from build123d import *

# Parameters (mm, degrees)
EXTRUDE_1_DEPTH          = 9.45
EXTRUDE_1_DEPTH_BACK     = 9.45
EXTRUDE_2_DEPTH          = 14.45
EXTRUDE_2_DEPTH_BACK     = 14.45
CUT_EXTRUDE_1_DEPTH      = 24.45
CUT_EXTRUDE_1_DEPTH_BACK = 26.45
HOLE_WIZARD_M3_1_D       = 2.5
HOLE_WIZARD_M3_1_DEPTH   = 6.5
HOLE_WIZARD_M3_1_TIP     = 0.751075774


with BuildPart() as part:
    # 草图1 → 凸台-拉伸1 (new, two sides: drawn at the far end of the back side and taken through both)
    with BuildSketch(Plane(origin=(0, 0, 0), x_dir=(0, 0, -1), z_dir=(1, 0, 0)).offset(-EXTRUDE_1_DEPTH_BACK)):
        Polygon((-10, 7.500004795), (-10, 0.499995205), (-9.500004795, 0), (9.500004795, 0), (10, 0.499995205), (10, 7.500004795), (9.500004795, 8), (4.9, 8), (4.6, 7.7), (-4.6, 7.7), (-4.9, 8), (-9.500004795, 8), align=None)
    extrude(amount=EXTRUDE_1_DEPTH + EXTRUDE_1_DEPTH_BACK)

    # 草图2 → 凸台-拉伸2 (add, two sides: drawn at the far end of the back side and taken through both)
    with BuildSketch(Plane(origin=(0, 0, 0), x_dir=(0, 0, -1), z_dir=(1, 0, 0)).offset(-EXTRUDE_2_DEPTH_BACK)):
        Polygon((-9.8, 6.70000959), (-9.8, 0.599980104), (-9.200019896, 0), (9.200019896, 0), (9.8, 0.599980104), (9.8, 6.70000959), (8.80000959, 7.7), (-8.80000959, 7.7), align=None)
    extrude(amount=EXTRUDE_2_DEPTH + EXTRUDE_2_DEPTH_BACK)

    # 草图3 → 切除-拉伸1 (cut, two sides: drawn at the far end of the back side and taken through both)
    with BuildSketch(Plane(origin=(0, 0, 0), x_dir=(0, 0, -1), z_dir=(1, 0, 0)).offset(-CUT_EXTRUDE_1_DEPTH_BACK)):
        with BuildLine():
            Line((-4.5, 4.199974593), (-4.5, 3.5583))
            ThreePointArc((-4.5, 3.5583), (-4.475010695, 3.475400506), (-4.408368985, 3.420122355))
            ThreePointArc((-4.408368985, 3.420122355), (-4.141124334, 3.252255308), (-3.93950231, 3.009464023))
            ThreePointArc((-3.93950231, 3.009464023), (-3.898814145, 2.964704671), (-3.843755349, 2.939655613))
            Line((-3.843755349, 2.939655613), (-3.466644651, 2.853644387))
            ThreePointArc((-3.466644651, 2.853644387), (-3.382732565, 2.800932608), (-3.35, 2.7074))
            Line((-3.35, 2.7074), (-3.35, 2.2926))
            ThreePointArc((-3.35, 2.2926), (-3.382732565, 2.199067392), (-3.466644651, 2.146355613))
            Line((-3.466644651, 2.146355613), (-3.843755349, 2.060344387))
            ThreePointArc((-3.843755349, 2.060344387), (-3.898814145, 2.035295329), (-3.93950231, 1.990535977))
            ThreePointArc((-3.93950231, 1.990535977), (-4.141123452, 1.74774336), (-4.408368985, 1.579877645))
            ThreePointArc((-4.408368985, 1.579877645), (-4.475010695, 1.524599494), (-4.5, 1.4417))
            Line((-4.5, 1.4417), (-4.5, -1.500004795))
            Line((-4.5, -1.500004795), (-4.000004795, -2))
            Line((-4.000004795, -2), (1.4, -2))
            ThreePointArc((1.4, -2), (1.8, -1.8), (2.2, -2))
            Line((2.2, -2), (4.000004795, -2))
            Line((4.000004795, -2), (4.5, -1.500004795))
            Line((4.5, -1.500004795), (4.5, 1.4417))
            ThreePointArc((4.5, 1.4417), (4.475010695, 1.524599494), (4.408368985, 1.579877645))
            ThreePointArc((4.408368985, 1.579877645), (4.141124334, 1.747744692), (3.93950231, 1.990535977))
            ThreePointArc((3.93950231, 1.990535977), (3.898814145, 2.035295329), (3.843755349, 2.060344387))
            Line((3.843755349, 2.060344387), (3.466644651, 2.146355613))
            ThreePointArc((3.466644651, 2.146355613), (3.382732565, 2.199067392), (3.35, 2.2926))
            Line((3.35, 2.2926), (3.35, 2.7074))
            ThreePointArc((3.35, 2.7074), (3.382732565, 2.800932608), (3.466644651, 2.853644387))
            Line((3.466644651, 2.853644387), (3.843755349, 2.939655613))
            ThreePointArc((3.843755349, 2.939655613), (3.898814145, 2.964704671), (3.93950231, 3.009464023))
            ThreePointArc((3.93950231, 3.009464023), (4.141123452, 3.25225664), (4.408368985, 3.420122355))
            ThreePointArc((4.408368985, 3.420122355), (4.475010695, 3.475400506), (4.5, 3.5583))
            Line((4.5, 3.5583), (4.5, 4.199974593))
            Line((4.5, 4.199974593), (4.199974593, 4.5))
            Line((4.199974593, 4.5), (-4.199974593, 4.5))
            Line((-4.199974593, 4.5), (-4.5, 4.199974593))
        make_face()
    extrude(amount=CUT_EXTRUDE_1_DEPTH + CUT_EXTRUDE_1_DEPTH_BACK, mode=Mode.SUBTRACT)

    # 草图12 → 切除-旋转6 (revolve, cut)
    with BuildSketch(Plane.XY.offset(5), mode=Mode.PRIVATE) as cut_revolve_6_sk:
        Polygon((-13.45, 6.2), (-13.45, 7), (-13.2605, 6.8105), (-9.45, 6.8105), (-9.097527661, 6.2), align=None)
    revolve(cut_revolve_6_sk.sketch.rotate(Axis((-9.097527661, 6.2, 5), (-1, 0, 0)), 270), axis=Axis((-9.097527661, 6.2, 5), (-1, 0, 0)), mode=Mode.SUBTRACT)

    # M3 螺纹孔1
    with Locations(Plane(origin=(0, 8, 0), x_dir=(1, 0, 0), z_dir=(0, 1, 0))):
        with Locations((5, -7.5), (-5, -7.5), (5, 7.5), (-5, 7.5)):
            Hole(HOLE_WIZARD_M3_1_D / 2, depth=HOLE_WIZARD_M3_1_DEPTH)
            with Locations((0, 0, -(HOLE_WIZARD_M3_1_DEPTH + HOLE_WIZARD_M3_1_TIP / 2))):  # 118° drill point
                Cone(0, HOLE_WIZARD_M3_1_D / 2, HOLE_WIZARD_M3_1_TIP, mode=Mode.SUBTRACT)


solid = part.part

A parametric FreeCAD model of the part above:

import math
import FreeCAD as App
import Part
import Sketcher
from FreeCAD import Vector
Q = App.Units.Quantity


def add_polygon(sketch, points):
    """Adds a closed chain of lines whose ends are joined by coincident constraints."""
    first, n = sketch.GeometryCount, len(points)
    for a, b in zip(points, points[1:] + points[:1]):
        sketch.addGeometry(Part.LineSegment(App.Vector(*a, 0), App.Vector(*b, 0)), False)
    for i in range(n):
        sketch.addConstraint(Sketcher.Constraint("Coincident", first + i, 2, first + (i + 1) % n, 1))

doc = App.newDocument("Part")
body = doc.addObject("PartDesign::Body", "Body")

sketch1 = body.newObject("Sketcher::SketchObject", "Sketch")
sketch1.AttachmentSupport = (doc.getObject("YZ_Plane"), [""])
sketch1.MapMode = "FlatFace"
add_polygon(sketch1, [(7.5, 10), (0.5, 10), (0, 9.5), (0, -9.5), (0.5, -10), (7.5, -10), (8, -9.5), (8, -4.9), (7.7, -4.6), (7.7, 4.6), (8, 4.9), (8, 9.5)])
sketch1.addConstraint([
    Sketcher.Constraint("Horizontal", 0),
    Sketcher.Constraint("Vertical", 2),
    Sketcher.Constraint("Horizontal", 4),
    Sketcher.Constraint("Vertical", 6),
    Sketcher.Constraint("Vertical", 8),
    Sketcher.Constraint("Vertical", 10),
    Sketcher.Constraint("Symmetric", 1, 2, 2, 2, -1, 1),
    Sketcher.Constraint("Symmetric", 0, 2, 3, 2, -1),
    Sketcher.Constraint("Symmetric", 6, 2, 9, 2, -1),
    Sketcher.Constraint("Perpendicular", 1, 3),
    Sketcher.Constraint("Perpendicular", 3, 5),
    Sketcher.Constraint("Perpendicular", 5, 7),
    Sketcher.Constraint("Perpendicular", 7, 9),
    Sketcher.Constraint("Perpendicular", 9, 11),
    Sketcher.Constraint("Horizontal", 2, 2, 5, 2),
    Sketcher.Constraint("Horizontal", 1, 2, 10, 2),
    Sketcher.Constraint("DistanceY", 8, 1, 8, 2, 9.2),
    Sketcher.Constraint("DistanceY", -1, 1, 0, 2, 10.0),
    Sketcher.Constraint("DistanceX", -1, 1, 5, 2, 8.0),
    Sketcher.Constraint("DistanceY", 6, 2, -1, 1, 4.9),
    Sketcher.Constraint("Distance", 1, 0.7071),
])
pad1 = body.newObject("PartDesign::Pad", "Pad")
pad1.Profile = sketch1
pad1.Type = "TwoLengths"
pad1.Length = 9.45
pad1.Length2 = 9.45

sketch2 = body.newObject("Sketcher::SketchObject", "Sketch001")
sketch2.AttachmentSupport = (doc.getObject("YZ_Plane"), [""])
sketch2.MapMode = "FlatFace"
add_polygon(sketch2, [(6.7, 9.8), (0.6, 9.8), (0, 9.2), (0, -9.2), (0.6, -9.8), (6.7, -9.8), (7.7, -8.8), (7.7, 8.8)])
sketch2.addConstraint([
    Sketcher.Constraint("Horizontal", 0),
    Sketcher.Constraint("Vertical", 2),
    Sketcher.Constraint("Horizontal", 4),
    Sketcher.Constraint("Vertical", 6),
    Sketcher.Constraint("Symmetric", 1, 2, 2, 2, -1, 1),
    Sketcher.Constraint("Symmetric", 0, 2, 3, 2, -1),
    Sketcher.Constraint("Perpendicular", 1, 3),
    Sketcher.Constraint("Perpendicular", 3, 5),
    Sketcher.Constraint("Perpendicular", 5, 7),
    Sketcher.Constraint("Vertical", 4, 2, 7, 2),
    Sketcher.Constraint("DistanceY", -1, 1, 0, 2, 9.8),
    Sketcher.Constraint("DistanceX", -1, 1, 5, 2, 7.7),
    Sketcher.Constraint("Distance", 1, 0.8485),
    Sketcher.Constraint("Distance", 5, 1.4142),
])
pad2 = body.newObject("PartDesign::Pad", "Pad001")
pad2.Profile = sketch2
pad2.Type = "TwoLengths"
pad2.Length = 14.45
pad2.Length2 = 14.45

sketch3 = body.newObject("Sketcher::SketchObject", "Sketch002")
sketch3.AttachmentSupport = (doc.getObject("YZ_Plane"), [""])
sketch3.MapMode = "FlatFace"
sketch3.addGeometry([
    Part.LineSegment(Vector(4.2, 4.5, 0), Vector(3.56, 4.5, 0)),
    Part.ArcOfCircle(Part.Circle(Vector(3.56, 4.35, 0), Vector(0, 0, 1), 0.15), math.radians(90), math.radians(157)),
    Part.ArcOfCircle(Part.Circle(Vector(2.5, 4.8, 0), Vector(0, 0, 1), 1), math.radians(-59), math.radians(-23)),
    Part.ArcOfCircle(Part.Circle(Vector(3.09, 3.81, 0), Vector(0, 0, 1), 0.15), math.radians(121), math.radians(167)),
    Part.LineSegment(Vector(2.94, 3.84, 0), Vector(2.85, 3.47, 0)),
    Part.ArcOfCircle(Part.Circle(Vector(2.71, 3.5, 0), Vector(0, 0, 1), 0.15), math.radians(-90), math.radians(-13)),
    Part.LineSegment(Vector(2.71, 3.35, 0), Vector(2.29, 3.35, 0)),
    Part.ArcOfCircle(Part.Circle(Vector(2.29, 3.5, 0), Vector(0, 0, 1), 0.15), math.radians(-167), math.radians(-90)),
    Part.LineSegment(Vector(2.15, 3.47, 0), Vector(2.06, 3.84, 0)),
    Part.ArcOfCircle(Part.Circle(Vector(1.91, 3.81, 0), Vector(0, 0, 1), 0.15), math.radians(13), math.radians(59)),
    Part.ArcOfCircle(Part.Circle(Vector(2.5, 4.8, 0), Vector(0, 0, 1), 1), math.radians(-157), math.radians(-121)),
    Part.ArcOfCircle(Part.Circle(Vector(1.44, 4.35, 0), Vector(0, 0, 1), 0.15), math.radians(23), math.radians(90)),
    Part.LineSegment(Vector(1.44, 4.5, 0), Vector(-1.5, 4.5, 0)),
    Part.LineSegment(Vector(-1.5, 4.5, 0), Vector(-2, 4, 0)),
    Part.LineSegment(Vector(-2, 4, 0), Vector(-2, -1.4, 0)),
    Part.ArcOfCircle(Part.Circle(Vector(-2.3, -1.8, 0), Vector(0, 0, 1), 0.5), math.radians(-53), math.radians(53)),
    Part.LineSegment(Vector(-2, -2.2, 0), Vector(-2, -4, 0)),
    Part.LineSegment(Vector(-2, -4, 0), Vector(-1.5, -4.5, 0)),
    Part.LineSegment(Vector(-1.5, -4.5, 0), Vector(1.44, -4.5, 0)),
    Part.ArcOfCircle(Part.Circle(Vector(1.44, -4.35, 0), Vector(0, 0, 1), 0.15), math.radians(-90), math.radians(-23)),
    Part.ArcOfCircle(Part.Circle(Vector(2.5, -4.8, 0), Vector(0, 0, 1), 1), math.radians(121), math.radians(157)),
    Part.ArcOfCircle(Part.Circle(Vector(1.91, -3.81, 0), Vector(0, 0, 1), 0.15), math.radians(-59), math.radians(-13)),
    Part.LineSegment(Vector(2.06, -3.84, 0), Vector(2.15, -3.47, 0)),
    Part.ArcOfCircle(Part.Circle(Vector(2.29, -3.5, 0), Vector(0, 0, 1), 0.15), math.radians(90), math.radians(167)),
    Part.LineSegment(Vector(2.29, -3.35, 0), Vector(2.71, -3.35, 0)),
    Part.ArcOfCircle(Part.Circle(Vector(2.71, -3.5, 0), Vector(0, 0, 1), 0.15), math.radians(13), math.radians(90)),
    Part.LineSegment(Vector(2.85, -3.47, 0), Vector(2.94, -3.84, 0)),
    Part.ArcOfCircle(Part.Circle(Vector(3.09, -3.81, 0), Vector(0, 0, 1), 0.15), math.radians(-167), math.radians(-121)),
    Part.ArcOfCircle(Part.Circle(Vector(2.5, -4.8, 0), Vector(0, 0, 1), 1), math.radians(23), math.radians(59)),
    Part.ArcOfCircle(Part.Circle(Vector(3.56, -4.35, 0), Vector(0, 0, 1), 0.15), math.radians(-157), math.radians(-90)),
    Part.LineSegment(Vector(3.56, -4.5, 0), Vector(4.2, -4.5, 0)),
    Part.LineSegment(Vector(4.2, -4.5, 0), Vector(4.5, -4.2, 0)),
    Part.LineSegment(Vector(4.5, -4.2, 0), Vector(4.5, 4.2, 0)),
    Part.LineSegment(Vector(4.5, 4.2, 0), Vector(4.2, 4.5, 0)),
], False)
sketch3.addConstraint([
    Sketcher.Constraint("Tangent", 0, 2, 1, 1),
    Sketcher.Constraint("Coincident", 1, 2, 2, 2),
    Sketcher.Constraint("Coincident", 2, 1, 3, 1),
    Sketcher.Constraint("Coincident", 3, 2, 4, 1),
    Sketcher.Constraint("Tangent", 4, 2, 5, 2),
    Sketcher.Constraint("Tangent", 5, 1, 6, 1),
    Sketcher.Constraint("Tangent", 6, 2, 7, 2),
    Sketcher.Constraint("Tangent", 7, 1, 8, 1),
    Sketcher.Constraint("Coincident", 8, 2, 9, 1),
    Sketcher.Constraint("Coincident", 9, 2, 10, 2),
    Sketcher.Constraint("Coincident", 10, 1, 11, 1),
    Sketcher.Constraint("Tangent", 11, 2, 12, 1),
    Sketcher.Constraint("Coincident", 12, 2, 13, 1),
    Sketcher.Constraint("Coincident", 13, 2, 14, 1),
    Sketcher.Constraint("Coincident", 14, 2, 15, 2),
    Sketcher.Constraint("Coincident", 15, 1, 16, 1),
    Sketcher.Constraint("Coincident", 16, 2, 17, 1),
    Sketcher.Constraint("Coincident", 17, 2, 18, 1),
    Sketcher.Constraint("Tangent", 18, 2, 19, 1),
    Sketcher.Constraint("Coincident", 19, 2, 20, 2),
    Sketcher.Constraint("Coincident", 20, 1, 21, 1),
    Sketcher.Constraint("Coincident", 21, 2, 22, 1),
    Sketcher.Constraint("Tangent", 22, 2, 23, 2),
    Sketcher.Constraint("Tangent", 23, 1, 24, 1),
    Sketcher.Constraint("Tangent", 24, 2, 25, 2),
    Sketcher.Constraint("Tangent", 25, 1, 26, 1),
    Sketcher.Constraint("Coincident", 26, 2, 27, 1),
    Sketcher.Constraint("Coincident", 27, 2, 28, 2),
    Sketcher.Constraint("Coincident", 28, 1, 29, 1),
    Sketcher.Constraint("Tangent", 29, 2, 30, 1),
    Sketcher.Constraint("Coincident", 30, 2, 31, 1),
    Sketcher.Constraint("Coincident", 31, 2, 32, 1),
    Sketcher.Constraint("Coincident", 32, 2, 33, 1),
    Sketcher.Constraint("Coincident", 33, 2, 0, 1),
    Sketcher.Constraint("Horizontal", 0),
    Sketcher.Constraint("Horizontal", 6),
    Sketcher.Constraint("Horizontal", 12),
    Sketcher.Constraint("Vertical", 14),
    Sketcher.Constraint("Vertical", 16),
    Sketcher.Constraint("Horizontal", 18),
    Sketcher.Constraint("Horizontal", 24),
    Sketcher.Constraint("Horizontal", 30),
    Sketcher.Constraint("Vertical", 32),
    Sketcher.Constraint("Equal", 1, 3),
    Sketcher.Constraint("Equal", 3, 5),
    Sketcher.Constraint("Equal", 5, 7),
    Sketcher.Constraint("Equal", 7, 9),
    Sketcher.Constraint("Equal", 9, 11),
    Sketcher.Constraint("Equal", 11, 19),
    Sketcher.Constraint("Equal", 2, 20),
    Sketcher.Constraint("Equal", 19, 21),
    Sketcher.Constraint("Equal", 21, 23),
    Sketcher.Constraint("Equal", 23, 25),
    Sketcher.Constraint("Equal", 25, 27),
    Sketcher.Constraint("Equal", 10, 28),
    Sketcher.Constraint("Equal", 27, 29),
    Sketcher.Constraint("Symmetric", 11, 3, 19, 3, -1),
    Sketcher.Constraint("Symmetric", 2, 3, 20, 3, -1),
    Sketcher.Constraint("Symmetric", 9, 3, 21, 3, -1),
    Sketcher.Constraint("Symmetric", 7, 3, 23, 3, -1),
    Sketcher.Constraint("Symmetric", 3, 3, 27, 3, -1),
    Sketcher.Constraint("Symmetric", 1, 3, 29, 3, -1),
    Sketcher.Constraint("Symmetric", 13, 2, 16, 2, -1),
    Sketcher.Constraint("Perpendicular", 13, 17),
    Sketcher.Constraint("Parallel", 4, 22),
    Sketcher.Constraint("Parallel", 8, 26),
    Sketcher.Constraint("Perpendicular", 17, 31),
    Sketcher.Constraint("Perpendicular", 31, 33),
    Sketcher.Constraint("Horizontal", 3, 3, 9, 3),
    Sketcher.Constraint("Horizontal", 1, 3, 11, 3),
    Sketcher.Constraint("Horizontal", 3, 2, 8, 2),
    Sketcher.Constraint("Horizontal", 2, 1, 9, 2),
    Sketcher.Constraint("Horizontal", 1, 2, 10, 1),
    Sketcher.Constraint("Horizontal", 21, 2, 26, 2),
    Sketcher.Constraint("Horizontal", 20, 1, 27, 2),
    Sketcher.Constraint("Horizontal", 19, 2, 28, 1),
    Sketcher.Constraint("Vertical", 12, 2, 17, 2),
    Sketcher.Constraint("Vertical", 10, 1, 19, 2),
    Sketcher.Constraint("Vertical", 9, 2, 20, 1),
    Sketcher.Constraint("Vertical", 8, 2, 21, 2),
    Sketcher.Constraint("Vertical", 30, 2, 33, 2),
    Sketcher.Constraint("Radius", 2, 1.0),
    Sketcher.Constraint("Radius", 15, 0.5),
    Sketcher.Constraint("Radius", 1, 0.15),
    Sketcher.Constraint("DistanceX", 13, 2, -1, 1, 2.0),
    Sketcher.Constraint("DistanceY", 23, 3, 7, 3, 7.0),
    Sketcher.Constraint("DistanceY", 5, 3, 0, 2, 1.0),
    Sketcher.Constraint("DistanceX", 15, 3, -1, 1, 2.3),
    Sketcher.Constraint("DistanceY", 15, 3, -1, 1, 1.8),
    Sketcher.Constraint("DistanceX", -1, 1, 31, 2, 4.5),
    Sketcher.Constraint("Radius", 10, 0.99997),
    Sketcher.Constraint("DistanceX", 6, 2, 6, 1, 0.4148),
    Sketcher.Constraint("Distance", 13, 0.7071),
    Sketcher.Constraint("Distance", 31, 0.4243),
    Sketcher.Constraint("DistanceX", -1, 1, 1, 3, 3.5583),
    Sketcher.Constraint("DistanceX", -1, 1, 5, 3, 2.7074),
    Sketcher.Constraint("DistanceY", 4, 2, 3, 3, 0.3438),
    Sketcher.Constraint("DistanceX", 10, 1, 10, 3, 0.920102),
    Sketcher.Constraint("DistanceY", 3, 3, 2, 1, 0.129058),
    Sketcher.Constraint("DistanceX", 3, 2, 2, 1, 0.069808),
])
pocket1 = body.newObject("PartDesign::Pocket", "Pocket")
pocket1.Profile = sketch3
pocket1.Type = "ThroughAll"
pocket1.Midplane = True

sketch4 = body.newObject("Sketcher::SketchObject", "Sketch003")
sketch4.AttachmentSupport = (doc.getObject("XY_Plane"), [""])
sketch4.MapMode = "FlatFace"
sketch4.AttachmentOffset = App.Placement(Vector(0, 0, 5), App.Rotation())
add_polygon(sketch4, [(-13.45, 7), (-13.45, 6.2), (-9.1, 6.2), (-9.45, 6.81), (-13.26, 6.81)])
sketch4.addGeometry(Part.LineSegment(Vector(-9.1, 6.2, 0), Vector(-13.45, 6.2, 0)), True)
sketch4.addConstraint([
    Sketcher.Constraint("Vertical", 0),
    Sketcher.Constraint("Horizontal", 1),
    Sketcher.Constraint("Horizontal", 3),
    Sketcher.Constraint("Horizontal", 5),
    Sketcher.Constraint("Coincident", 5, 1, 1, 2),
    Sketcher.Constraint("Vertical", 4, 2, 5, 2),
    Sketcher.Constraint("Angle", 2, Q("120 deg")),
    Sketcher.Constraint("Angle", 4, Q("135 deg")),
    Sketcher.Constraint("DistanceY", 0, 2, 0, 1, 0.8),
    Sketcher.Constraint("DistanceY", -1, 1, 4, 2, 7.0),
    Sketcher.Constraint("DistanceX", 0, 2, 2, 2, 4.0),
    Sketcher.Constraint("DistanceX", 0, 2, -1, 1, 13.45),
    Sketcher.Constraint("DistanceX", 3, 2, 3, 1, 3.8105),
])
groove = body.newObject("PartDesign::Groove", "Groove")
groove.Profile = sketch4
groove.ReferenceAxis = (sketch4, ["Axis0"])
groove.Angle = 360

sketch5 = body.newObject("Sketcher::SketchObject", "Sketch004")
sketch5.AttachmentSupport = (doc.getObject("XZ_Plane"), [""])
sketch5.MapMode = "FlatFace"
sketch5.AttachmentOffset = App.Placement(Vector(0, 0, -8), App.Rotation())
sketch5.addGeometry([
    Part.Circle(Vector(5, 7.5, 0), Vector(0, 0, 1), 1.2),
    Part.Circle(Vector(-5, 7.5, 0), Vector(0, 0, 1), 1.2),
    Part.Circle(Vector(5, -7.5, 0), Vector(0, 0, 1), 1.2),
    Part.Circle(Vector(-5, -7.5, 0), Vector(0, 0, 1), 1.2),
], False)
sketch5.addConstraint([
    Sketcher.Constraint("Equal", 0, 1),
    Sketcher.Constraint("Equal", 1, 2),
    Sketcher.Constraint("Equal", 2, 3),
    Sketcher.Constraint("Symmetric", 1, 3, 2, 3, -1, 1),
    Sketcher.Constraint("Symmetric", 0, 3, 3, 3, -1, 1),
    Sketcher.Constraint("Symmetric", 0, 3, 1, 3, -2),
    Sketcher.Constraint("Diameter", 0, 2.5),
    Sketcher.Constraint("DistanceX", -1, 1, 0, 3, 5.0),
    Sketcher.Constraint("DistanceY", 2, 3, 0, 3, 15.0),
])
doc.recompute()
hole = body.newObject("PartDesign::Hole", "Hole")
hole.Profile = sketch5
hole.ThreadType = "None"
hole.Diameter = 2.5
hole.DepthType = "Dimension"
hole.Depth = 6.5
hole.DrillPoint = "Angled"
hole.DrillPointAngle = 118
hole.Reversed = True

doc.recompute()
